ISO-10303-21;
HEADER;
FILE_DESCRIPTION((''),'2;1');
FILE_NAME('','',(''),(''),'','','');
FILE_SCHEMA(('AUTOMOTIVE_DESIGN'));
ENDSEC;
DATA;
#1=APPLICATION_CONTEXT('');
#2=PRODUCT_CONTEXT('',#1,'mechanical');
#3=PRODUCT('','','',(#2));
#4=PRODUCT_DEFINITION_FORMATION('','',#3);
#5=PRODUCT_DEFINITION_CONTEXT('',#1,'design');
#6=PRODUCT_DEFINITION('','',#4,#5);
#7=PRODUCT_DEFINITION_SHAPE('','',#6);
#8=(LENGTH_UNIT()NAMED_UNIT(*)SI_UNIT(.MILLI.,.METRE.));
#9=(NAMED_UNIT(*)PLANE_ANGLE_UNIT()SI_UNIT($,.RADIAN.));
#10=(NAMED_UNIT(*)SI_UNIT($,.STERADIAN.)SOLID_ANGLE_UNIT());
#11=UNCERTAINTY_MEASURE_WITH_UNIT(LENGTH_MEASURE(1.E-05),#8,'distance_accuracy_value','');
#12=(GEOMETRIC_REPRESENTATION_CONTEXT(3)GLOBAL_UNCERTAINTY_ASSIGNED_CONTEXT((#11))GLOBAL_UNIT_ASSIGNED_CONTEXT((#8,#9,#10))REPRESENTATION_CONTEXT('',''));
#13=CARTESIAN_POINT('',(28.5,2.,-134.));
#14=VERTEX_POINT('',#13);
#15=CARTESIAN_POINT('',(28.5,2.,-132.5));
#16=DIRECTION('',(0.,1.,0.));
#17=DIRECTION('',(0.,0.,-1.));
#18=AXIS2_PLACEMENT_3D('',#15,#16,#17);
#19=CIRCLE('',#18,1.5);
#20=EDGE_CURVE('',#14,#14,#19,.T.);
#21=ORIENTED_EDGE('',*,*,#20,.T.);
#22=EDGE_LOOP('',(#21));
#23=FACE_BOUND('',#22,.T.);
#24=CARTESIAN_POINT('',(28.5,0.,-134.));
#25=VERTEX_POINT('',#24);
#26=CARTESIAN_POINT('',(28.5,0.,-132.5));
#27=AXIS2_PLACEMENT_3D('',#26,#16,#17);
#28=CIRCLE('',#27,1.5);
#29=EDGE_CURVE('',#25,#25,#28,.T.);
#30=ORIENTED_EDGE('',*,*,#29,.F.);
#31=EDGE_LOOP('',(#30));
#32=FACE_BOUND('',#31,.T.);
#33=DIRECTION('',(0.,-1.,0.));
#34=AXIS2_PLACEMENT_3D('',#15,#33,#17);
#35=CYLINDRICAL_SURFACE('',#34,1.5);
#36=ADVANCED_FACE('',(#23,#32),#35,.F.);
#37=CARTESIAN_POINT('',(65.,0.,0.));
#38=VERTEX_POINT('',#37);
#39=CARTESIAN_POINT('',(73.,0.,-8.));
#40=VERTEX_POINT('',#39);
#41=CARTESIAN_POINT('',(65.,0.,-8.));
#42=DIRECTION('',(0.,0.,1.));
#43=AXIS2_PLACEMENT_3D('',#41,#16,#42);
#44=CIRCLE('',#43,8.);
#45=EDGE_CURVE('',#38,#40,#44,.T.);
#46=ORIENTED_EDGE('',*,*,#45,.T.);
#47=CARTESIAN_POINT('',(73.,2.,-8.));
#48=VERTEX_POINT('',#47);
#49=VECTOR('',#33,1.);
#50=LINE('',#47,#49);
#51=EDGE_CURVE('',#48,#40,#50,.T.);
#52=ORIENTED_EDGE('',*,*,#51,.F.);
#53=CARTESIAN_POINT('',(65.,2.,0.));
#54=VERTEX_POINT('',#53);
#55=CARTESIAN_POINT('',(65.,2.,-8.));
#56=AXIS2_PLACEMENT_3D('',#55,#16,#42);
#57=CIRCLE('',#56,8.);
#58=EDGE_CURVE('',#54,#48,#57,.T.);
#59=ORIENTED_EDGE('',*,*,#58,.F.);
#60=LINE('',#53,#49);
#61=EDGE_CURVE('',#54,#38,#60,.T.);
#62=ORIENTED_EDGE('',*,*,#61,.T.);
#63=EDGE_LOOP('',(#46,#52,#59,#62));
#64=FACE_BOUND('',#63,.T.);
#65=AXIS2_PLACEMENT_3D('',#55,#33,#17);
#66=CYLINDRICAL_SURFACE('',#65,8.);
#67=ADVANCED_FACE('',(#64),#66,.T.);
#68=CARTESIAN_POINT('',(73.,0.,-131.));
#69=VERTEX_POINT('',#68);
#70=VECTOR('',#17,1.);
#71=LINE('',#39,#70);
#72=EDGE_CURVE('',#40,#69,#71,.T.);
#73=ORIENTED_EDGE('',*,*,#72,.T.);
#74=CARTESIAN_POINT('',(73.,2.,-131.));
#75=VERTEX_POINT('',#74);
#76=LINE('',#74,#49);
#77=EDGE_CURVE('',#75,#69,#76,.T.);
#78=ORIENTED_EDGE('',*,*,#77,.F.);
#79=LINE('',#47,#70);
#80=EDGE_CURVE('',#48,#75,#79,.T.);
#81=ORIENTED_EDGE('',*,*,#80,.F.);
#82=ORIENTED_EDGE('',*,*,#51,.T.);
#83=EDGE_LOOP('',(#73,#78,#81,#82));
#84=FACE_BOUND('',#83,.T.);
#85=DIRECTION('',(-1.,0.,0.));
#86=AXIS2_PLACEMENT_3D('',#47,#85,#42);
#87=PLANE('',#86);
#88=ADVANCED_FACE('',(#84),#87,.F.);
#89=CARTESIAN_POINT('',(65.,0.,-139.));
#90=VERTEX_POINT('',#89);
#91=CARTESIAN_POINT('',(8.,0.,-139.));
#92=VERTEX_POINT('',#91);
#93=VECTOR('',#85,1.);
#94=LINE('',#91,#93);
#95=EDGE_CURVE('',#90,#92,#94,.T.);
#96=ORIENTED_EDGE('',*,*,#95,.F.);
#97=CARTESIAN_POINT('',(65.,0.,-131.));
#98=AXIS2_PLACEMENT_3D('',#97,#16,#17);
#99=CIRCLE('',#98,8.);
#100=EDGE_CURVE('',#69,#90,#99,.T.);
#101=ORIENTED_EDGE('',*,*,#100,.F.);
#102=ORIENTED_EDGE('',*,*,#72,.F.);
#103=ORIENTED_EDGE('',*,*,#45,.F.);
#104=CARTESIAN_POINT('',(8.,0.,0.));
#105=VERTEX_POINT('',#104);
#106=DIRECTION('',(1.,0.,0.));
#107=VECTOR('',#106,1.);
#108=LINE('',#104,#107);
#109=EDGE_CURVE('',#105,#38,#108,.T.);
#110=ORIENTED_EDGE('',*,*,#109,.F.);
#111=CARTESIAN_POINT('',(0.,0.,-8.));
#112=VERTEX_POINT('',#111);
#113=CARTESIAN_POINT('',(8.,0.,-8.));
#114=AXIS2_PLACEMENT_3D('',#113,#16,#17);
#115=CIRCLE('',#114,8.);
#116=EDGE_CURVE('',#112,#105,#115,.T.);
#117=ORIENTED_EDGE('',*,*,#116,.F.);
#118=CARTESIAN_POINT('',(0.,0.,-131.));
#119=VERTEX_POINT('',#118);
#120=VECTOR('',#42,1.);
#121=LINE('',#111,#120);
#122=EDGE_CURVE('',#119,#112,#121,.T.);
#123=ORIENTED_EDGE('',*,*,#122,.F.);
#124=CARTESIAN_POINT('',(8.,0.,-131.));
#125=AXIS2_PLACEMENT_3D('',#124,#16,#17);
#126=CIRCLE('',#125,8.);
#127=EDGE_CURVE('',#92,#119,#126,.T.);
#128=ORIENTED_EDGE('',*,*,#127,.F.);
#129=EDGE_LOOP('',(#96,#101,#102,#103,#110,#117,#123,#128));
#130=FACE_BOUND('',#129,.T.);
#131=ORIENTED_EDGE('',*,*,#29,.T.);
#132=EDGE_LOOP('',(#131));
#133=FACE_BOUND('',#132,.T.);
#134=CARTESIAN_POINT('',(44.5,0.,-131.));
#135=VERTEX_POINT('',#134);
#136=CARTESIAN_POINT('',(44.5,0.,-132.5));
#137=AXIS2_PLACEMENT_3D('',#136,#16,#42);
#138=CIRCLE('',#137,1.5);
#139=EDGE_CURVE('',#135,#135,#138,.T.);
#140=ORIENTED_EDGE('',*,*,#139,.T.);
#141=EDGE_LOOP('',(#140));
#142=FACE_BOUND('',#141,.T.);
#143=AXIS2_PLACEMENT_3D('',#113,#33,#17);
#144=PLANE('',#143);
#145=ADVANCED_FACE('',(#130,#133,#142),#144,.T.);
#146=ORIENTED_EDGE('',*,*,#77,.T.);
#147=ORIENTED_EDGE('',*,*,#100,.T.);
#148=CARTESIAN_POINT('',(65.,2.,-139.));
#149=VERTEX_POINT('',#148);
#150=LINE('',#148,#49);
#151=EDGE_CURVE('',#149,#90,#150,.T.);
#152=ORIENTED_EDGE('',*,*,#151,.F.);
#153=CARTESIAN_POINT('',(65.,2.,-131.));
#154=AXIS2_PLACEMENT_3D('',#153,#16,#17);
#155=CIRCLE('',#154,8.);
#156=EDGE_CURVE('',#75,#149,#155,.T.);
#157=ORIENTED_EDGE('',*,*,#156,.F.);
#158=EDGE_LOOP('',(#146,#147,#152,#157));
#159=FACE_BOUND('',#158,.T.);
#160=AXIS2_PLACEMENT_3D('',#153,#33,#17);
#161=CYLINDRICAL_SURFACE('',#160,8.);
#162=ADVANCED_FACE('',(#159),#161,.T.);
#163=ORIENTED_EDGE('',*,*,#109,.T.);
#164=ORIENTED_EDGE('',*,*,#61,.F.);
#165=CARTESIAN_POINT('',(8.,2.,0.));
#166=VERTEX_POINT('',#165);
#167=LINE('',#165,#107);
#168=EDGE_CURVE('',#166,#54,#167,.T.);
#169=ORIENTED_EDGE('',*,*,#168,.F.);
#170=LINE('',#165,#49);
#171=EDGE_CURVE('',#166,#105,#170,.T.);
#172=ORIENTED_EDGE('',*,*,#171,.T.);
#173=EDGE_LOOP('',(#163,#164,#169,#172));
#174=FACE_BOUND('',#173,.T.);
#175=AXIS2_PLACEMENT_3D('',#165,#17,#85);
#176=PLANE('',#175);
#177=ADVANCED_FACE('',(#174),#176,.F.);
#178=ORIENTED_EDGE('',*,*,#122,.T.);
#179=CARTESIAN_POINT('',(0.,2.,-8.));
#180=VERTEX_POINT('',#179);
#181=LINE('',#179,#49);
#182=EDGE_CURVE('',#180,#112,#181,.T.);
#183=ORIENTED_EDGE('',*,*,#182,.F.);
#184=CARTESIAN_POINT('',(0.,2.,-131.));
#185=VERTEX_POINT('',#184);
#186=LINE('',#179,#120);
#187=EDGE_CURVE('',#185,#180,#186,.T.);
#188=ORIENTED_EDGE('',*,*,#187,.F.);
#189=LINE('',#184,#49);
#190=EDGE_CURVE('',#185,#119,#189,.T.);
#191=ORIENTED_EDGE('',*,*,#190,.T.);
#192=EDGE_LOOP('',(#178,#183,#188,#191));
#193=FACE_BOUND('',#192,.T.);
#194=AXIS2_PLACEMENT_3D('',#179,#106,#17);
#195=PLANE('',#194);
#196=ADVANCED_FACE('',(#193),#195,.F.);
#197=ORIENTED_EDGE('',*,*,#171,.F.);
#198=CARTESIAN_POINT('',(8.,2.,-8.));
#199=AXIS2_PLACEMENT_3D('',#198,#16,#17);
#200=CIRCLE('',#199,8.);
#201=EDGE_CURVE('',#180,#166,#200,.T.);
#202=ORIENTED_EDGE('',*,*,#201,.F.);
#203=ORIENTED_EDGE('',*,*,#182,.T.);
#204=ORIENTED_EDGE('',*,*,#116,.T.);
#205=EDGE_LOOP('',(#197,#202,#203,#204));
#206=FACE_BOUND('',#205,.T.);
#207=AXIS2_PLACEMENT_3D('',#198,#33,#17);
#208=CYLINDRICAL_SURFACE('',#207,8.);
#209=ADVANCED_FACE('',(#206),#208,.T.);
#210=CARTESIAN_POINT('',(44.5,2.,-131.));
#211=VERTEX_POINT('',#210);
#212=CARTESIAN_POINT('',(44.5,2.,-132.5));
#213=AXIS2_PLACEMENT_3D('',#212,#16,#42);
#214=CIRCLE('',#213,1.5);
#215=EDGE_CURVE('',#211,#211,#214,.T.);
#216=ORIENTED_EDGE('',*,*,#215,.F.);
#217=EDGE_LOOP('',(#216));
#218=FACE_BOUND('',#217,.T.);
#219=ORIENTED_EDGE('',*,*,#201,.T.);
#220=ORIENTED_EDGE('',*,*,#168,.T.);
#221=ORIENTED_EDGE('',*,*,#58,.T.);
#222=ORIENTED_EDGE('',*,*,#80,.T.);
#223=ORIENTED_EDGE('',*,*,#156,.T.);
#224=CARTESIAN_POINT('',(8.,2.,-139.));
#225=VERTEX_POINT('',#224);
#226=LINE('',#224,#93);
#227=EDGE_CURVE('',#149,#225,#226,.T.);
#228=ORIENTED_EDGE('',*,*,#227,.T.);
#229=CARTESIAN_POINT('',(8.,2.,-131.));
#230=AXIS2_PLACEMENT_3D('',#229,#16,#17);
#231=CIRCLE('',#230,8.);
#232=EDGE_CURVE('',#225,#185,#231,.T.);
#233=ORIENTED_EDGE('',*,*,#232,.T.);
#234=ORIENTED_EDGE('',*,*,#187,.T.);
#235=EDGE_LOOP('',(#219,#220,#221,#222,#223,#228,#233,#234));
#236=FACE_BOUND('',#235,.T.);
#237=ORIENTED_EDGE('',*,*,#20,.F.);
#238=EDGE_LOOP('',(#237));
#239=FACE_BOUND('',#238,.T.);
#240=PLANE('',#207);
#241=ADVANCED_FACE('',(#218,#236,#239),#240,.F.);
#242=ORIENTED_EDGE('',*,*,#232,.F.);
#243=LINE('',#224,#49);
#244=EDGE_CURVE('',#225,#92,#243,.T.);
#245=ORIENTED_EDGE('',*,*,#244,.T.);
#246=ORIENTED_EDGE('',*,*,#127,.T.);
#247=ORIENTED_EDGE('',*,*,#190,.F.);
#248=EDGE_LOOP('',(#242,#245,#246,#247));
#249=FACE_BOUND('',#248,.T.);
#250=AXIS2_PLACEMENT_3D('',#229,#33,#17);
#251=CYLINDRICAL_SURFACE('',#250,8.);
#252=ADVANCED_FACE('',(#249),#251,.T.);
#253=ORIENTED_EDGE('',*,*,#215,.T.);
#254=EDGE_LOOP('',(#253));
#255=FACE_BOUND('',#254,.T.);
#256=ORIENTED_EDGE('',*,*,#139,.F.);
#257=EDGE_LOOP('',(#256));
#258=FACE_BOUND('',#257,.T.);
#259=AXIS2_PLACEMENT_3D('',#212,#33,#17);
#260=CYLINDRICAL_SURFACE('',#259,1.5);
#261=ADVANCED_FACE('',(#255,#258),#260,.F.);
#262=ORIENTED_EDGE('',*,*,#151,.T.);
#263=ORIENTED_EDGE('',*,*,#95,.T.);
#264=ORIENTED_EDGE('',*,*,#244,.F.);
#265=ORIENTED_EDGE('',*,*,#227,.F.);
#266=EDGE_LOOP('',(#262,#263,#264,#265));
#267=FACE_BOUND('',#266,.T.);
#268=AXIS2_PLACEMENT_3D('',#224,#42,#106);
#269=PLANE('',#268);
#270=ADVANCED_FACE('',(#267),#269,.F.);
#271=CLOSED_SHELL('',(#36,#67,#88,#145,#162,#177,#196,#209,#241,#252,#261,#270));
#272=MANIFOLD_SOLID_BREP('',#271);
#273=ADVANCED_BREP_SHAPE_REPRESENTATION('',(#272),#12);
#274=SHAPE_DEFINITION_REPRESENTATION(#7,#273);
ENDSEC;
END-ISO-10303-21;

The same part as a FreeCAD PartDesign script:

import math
import FreeCAD as App
import Part
import Sketcher
from FreeCAD import Vector

doc = App.newDocument("Part")
body = doc.addObject("PartDesign::Body", "Body")

# Sketch on XZ plane
sketch1 = body.newObject("Sketcher::SketchObject", "Sketch")
sketch1.AttachmentSupport = (doc.getObject("XZ_Plane"), [""])
sketch1.MapMode = "FlatFace"
sketch1.addGeometry([
    Part.LineSegment(Vector(8, 0, 0), Vector(65, 0, 0)),  # 0
    Part.ArcOfCircle(Part.Circle(Vector(65, -8, 0), Vector(0, 0, 1), 8), math.radians(0), math.radians(90)),  # 1
    Part.LineSegment(Vector(73, -8, 0), Vector(73, -131, 0)),  # 2
    Part.ArcOfCircle(Part.Circle(Vector(65, -131, 0), Vector(0, 0, 1), 8), math.radians(-90), math.radians(0)),  # 3
    Part.LineSegment(Vector(65, -139, 0), Vector(8, -139, 0)),  # 4
    Part.ArcOfCircle(Part.Circle(Vector(8, -131, 0), Vector(0, 0, 1), 8), math.radians(-180), math.radians(-90)),  # 5
    Part.LineSegment(Vector(0, -131, 0), Vector(0, -8, 0)),  # 6
    Part.ArcOfCircle(Part.Circle(Vector(8, -8, 0), Vector(0, 0, 1), 8), math.radians(90), math.radians(180)),  # 7
    Part.Circle(Vector(28.5, -132.5, 0), Vector(0, 0, 1), 1.5),  # 8
    Part.Circle(Vector(44.5, -132.5, 0), Vector(0, 0, 1), 1.5),  # 9
], False)
sketch1.addConstraint([
    Sketcher.Constraint("Tangent", 0, 2, 1, 2),
    Sketcher.Constraint("Tangent", 1, 1, 2, 1),
    Sketcher.Constraint("Tangent", 2, 2, 3, 2),
    Sketcher.Constraint("Tangent", 3, 1, 4, 1),
    Sketcher.Constraint("Tangent", 4, 2, 5, 2),
    Sketcher.Constraint("Tangent", 5, 1, 6, 1),
    Sketcher.Constraint("Tangent", 6, 2, 7, 2),
    Sketcher.Constraint("Tangent", 7, 1, 0, 1),
    Sketcher.Constraint("Horizontal", 0),
    Sketcher.Constraint("Vertical", 2),
    Sketcher.Constraint("Horizontal", 4),
    Sketcher.Constraint("Vertical", 6),
    Sketcher.Constraint("Equal", 1, 3),
    Sketcher.Constraint("Equal", 3, 5),
    Sketcher.Constraint("Equal", 5, 7),
    Sketcher.Constraint("Equal", 8, 9),
    Sketcher.Constraint("PointOnObject", 0, 2, -1),
    Sketcher.Constraint("PointOnObject", 5, 1, -2),
    Sketcher.Constraint("Horizontal", 8, 3, 9, 3),
    Sketcher.Constraint("Diameter", 8, 3.0),
    Sketcher.Constraint("Radius", 1, 8.0),
    Sketcher.Constraint("DistanceX", 0, 1, 0, 2, 57.0),
    Sketcher.Constraint("DistanceY", 2, 2, 2, 1, 123.0),
    Sketcher.Constraint("DistanceX", 8, 3, 9, 3, 16.0),
    Sketcher.Constraint("DistanceX", -1, 1, 8, 3, 28.5),
    Sketcher.Constraint("DistanceY", 8, 3, -1, 1, 132.5),
])
pad1 = body.newObject("PartDesign::Pad", "Pad")
pad1.Profile = sketch1
pad1.Length = 2
pad1.Reversed = True

doc.recompute()
